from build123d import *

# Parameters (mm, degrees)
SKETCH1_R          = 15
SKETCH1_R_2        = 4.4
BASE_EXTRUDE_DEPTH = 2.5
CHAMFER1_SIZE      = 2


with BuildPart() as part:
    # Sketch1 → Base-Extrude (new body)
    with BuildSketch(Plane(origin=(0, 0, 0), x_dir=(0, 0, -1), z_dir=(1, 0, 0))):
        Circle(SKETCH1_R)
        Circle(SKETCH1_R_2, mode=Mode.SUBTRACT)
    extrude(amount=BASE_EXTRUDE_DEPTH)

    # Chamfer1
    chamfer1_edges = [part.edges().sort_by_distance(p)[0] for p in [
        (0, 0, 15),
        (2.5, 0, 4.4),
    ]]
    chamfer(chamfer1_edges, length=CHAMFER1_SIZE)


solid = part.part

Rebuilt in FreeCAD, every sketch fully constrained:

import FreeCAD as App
import Part
import Sketcher
Q = App.Units.Quantity


def edges_at(feature, points):
    """Names of the edges that pass closest to the given points."""
    edges = feature.Shape.Edges
    near = lambda p: min(range(len(edges)), key=lambda i: edges[i].distToShape(Part.Vertex(*p))[0])
    return sorted({f"Edge{near(p) + 1}" for p in points})

doc = App.newDocument("Part")
body = doc.addObject("PartDesign::Body", "Body")

sketch1 = body.newObject("Sketcher::SketchObject", "Sketch")
sketch1.AttachmentSupport = (doc.getObject("YZ_Plane"), [""])
sketch1.MapMode = "FlatFace"
sketch1.addGeometry([
    Part.Circle(App.Vector(0, 0, 0), App.Vector(0, 0, 1), 15),
    Part.Circle(App.Vector(0, 0, 0), App.Vector(0, 0, 1), 4.4),
], False)
sketch1.addConstraint([
    Sketcher.Constraint("Coincident", 0, 3, -1, 1),
    Sketcher.Constraint("Coincident", 1, 3, -1, 1),
    Sketcher.Constraint("Diameter", 0, Q("30 mm")),
    Sketcher.Constraint("Diameter", 1, Q("8.8 mm")),
])
pad1 = body.newObject("PartDesign::Pad", "Pad")
pad1.Profile = sketch1
pad1.Length = 2.5
doc.recompute()

chamfer = body.newObject("PartDesign::Chamfer", "Chamfer")
chamfer.Base = (pad1, edges_at(pad1, [(0, 0, 15), (2.5, 0, 4.4)]))
chamfer.Size = 2

doc.recompute()
